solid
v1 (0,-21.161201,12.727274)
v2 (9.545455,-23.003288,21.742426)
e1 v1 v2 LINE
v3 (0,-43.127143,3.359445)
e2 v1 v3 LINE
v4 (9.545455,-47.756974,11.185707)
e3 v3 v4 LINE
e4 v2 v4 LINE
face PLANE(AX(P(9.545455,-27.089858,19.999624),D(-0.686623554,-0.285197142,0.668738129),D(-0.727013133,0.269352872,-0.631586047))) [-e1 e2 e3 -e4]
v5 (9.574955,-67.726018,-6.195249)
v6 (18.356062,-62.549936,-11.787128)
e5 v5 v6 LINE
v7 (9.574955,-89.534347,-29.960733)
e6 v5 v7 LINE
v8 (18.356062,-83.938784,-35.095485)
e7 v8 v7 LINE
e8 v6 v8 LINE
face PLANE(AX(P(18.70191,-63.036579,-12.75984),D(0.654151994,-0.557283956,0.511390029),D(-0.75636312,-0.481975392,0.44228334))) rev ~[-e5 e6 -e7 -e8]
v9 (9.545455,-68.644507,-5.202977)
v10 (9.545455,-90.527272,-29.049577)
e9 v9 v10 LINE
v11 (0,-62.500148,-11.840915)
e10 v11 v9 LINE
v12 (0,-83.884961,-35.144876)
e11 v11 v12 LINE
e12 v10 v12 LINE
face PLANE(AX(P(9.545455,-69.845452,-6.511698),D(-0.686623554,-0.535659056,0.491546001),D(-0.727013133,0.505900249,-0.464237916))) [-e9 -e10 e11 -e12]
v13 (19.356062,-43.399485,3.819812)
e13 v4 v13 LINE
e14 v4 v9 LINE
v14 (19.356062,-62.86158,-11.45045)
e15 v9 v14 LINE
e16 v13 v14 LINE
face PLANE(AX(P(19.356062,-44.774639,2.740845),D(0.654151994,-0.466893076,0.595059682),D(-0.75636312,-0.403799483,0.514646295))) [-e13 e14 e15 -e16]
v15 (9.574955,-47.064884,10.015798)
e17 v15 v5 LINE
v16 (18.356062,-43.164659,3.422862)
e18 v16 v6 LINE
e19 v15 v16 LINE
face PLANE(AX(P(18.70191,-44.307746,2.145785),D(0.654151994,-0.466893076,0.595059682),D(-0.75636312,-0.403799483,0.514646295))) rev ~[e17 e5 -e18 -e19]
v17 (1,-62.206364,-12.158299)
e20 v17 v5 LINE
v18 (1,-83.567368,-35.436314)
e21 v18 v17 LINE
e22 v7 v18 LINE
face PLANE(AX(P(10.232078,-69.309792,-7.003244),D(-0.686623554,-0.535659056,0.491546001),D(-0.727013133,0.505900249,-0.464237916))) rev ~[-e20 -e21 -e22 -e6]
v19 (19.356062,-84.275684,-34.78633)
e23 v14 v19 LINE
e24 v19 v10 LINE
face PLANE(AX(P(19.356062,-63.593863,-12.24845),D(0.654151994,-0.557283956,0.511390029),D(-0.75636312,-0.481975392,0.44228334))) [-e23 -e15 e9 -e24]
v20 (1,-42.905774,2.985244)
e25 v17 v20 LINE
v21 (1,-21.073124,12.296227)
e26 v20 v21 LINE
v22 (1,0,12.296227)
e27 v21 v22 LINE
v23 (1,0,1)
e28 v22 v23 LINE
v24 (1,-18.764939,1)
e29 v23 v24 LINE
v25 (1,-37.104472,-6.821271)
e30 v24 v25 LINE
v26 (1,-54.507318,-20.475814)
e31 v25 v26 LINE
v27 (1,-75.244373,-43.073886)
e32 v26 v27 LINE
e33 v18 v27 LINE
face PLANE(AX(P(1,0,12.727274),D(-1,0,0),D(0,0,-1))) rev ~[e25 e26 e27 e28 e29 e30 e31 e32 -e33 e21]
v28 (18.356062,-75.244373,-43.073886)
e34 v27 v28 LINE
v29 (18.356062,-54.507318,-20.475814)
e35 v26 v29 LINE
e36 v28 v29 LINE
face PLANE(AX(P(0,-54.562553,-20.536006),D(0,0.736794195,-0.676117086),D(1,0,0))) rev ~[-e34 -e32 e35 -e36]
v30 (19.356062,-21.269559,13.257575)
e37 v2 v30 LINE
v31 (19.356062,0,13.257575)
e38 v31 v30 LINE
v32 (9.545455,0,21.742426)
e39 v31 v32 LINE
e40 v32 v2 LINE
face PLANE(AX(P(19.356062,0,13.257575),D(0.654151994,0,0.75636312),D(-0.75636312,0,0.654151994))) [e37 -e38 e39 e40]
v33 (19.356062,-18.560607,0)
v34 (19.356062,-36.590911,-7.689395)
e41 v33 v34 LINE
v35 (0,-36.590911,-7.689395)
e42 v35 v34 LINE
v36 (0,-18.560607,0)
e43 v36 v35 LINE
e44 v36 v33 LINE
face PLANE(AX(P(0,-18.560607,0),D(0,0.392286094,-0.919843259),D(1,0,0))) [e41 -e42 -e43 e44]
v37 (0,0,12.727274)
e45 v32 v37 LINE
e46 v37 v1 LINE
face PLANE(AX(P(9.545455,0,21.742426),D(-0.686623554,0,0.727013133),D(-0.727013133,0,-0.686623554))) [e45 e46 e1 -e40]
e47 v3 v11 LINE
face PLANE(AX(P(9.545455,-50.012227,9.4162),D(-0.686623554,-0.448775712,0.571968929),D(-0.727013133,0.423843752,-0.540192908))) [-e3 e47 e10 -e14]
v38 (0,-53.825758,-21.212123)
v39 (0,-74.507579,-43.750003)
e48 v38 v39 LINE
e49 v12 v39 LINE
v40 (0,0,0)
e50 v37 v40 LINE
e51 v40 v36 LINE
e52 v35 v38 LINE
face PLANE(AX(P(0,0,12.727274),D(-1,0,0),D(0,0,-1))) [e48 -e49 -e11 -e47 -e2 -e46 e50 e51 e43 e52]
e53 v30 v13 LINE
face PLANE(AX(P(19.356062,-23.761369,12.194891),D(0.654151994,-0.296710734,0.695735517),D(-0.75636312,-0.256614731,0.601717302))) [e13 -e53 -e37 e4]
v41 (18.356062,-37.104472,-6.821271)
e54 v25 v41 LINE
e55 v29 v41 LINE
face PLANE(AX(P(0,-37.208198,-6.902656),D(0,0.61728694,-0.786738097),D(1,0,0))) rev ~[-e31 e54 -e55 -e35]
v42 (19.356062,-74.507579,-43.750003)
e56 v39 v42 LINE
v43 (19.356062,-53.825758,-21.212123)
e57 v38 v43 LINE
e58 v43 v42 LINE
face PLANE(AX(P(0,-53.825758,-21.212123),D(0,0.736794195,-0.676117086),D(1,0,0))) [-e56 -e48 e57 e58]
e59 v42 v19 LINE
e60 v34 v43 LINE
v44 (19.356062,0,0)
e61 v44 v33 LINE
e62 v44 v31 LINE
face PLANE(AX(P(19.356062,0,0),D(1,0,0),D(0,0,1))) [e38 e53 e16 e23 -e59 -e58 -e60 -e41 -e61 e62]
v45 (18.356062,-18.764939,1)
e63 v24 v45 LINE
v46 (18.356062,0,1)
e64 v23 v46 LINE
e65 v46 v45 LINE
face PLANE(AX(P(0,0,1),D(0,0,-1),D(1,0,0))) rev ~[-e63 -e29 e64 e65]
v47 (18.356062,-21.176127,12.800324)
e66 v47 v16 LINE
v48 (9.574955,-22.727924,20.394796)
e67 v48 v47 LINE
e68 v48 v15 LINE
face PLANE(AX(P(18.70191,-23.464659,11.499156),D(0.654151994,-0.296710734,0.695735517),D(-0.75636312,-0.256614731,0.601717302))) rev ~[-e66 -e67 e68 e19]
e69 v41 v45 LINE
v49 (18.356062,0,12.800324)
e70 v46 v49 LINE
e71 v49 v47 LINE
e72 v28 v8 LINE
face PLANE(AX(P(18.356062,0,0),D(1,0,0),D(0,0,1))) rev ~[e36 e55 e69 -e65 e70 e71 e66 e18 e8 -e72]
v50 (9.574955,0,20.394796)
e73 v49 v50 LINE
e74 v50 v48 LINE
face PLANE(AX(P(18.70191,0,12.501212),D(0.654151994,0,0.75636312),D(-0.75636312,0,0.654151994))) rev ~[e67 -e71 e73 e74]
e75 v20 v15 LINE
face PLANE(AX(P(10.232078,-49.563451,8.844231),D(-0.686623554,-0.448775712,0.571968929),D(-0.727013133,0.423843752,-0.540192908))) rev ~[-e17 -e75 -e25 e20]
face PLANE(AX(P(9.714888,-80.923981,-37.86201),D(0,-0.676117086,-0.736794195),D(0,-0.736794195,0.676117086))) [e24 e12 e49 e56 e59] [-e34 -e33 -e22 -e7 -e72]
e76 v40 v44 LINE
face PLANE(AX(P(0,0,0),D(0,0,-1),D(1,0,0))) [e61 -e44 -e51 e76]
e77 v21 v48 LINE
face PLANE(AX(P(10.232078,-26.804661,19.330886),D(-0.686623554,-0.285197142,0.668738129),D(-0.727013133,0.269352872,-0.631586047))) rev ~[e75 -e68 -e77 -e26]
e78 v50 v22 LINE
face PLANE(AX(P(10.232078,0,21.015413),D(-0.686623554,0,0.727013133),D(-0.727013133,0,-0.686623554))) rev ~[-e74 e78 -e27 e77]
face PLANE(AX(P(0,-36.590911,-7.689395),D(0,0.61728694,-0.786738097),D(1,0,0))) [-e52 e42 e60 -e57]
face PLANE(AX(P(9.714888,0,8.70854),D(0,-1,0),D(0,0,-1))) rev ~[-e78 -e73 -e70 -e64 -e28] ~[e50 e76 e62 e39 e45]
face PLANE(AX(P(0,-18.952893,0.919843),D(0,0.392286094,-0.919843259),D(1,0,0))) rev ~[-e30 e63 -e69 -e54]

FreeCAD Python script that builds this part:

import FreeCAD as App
import Part
import Sketcher


def faces_at(feature, points):
    """Names of the faces that lie closest to the given points."""
    faces = feature.Shape.Faces
    near = lambda p: min(range(len(faces)), key=lambda i: faces[i].distToShape(Part.Vertex(*p))[0])
    return sorted({f"Face{near(p) + 1}" for p in points})


def add_polygon(sketch, points):
    """Adds a closed chain of lines whose ends are joined by coincident constraints."""
    first, n = sketch.GeometryCount, len(points)
    for a, b in zip(points, points[1:] + points[:1]):
        sketch.addGeometry(Part.LineSegment(App.Vector(*a, 0), App.Vector(*b, 0)), False)
    for i in range(n):
        sketch.addConstraint(Sketcher.Constraint("Coincident", first + i, 2, first + (i + 1) % n, 1))

doc = App.newDocument("Part")
body = doc.addObject("PartDesign::Body", "Body")

sketch1 = doc.addObject("Sketcher::SketchObject", "Sketch")
body.addObject(sketch1)
sketch1.AttachmentSupport = (doc.XZ_Plane, [""])
sketch1.MapMode = "FlatFace"
add_polygon(sketch1, [(0, 13), (0, 0), (19, 0), (19, 13), (10, 22)])
sketch1.addConstraint(Sketcher.Constraint("Vertical", 0))
sketch1.addConstraint(Sketcher.Constraint("Horizontal", 1))
sketch1.addConstraint(Sketcher.Constraint("Vertical", 2))
sketch1.addConstraint(Sketcher.Constraint("Coincident", 0, 2, -1, 1))
sketch1.addConstraint(Sketcher.Constraint("DistanceX", 1, 1, 1, 2, 19.356062))
sketch1.addConstraint(Sketcher.Constraint("DistanceY", 4, 2, 2, 2, 0.530302))
sketch1.addConstraint(Sketcher.Constraint("DistanceY", 0, 2, 0, 1, 12.727274))
sketch1.addConstraint(Sketcher.Constraint("DistanceY", 2, 2, 3, 2, 8.484851))
sketch1.addConstraint(Sketcher.Constraint("Distance", 3, 12.970763))

sketch2 = doc.addObject("Sketcher::SketchObject", "Sketch001")
body.addObject(sketch2)
sketch2.AttachmentSupport = (doc.YZ_Plane, [""])
sketch2.MapMode = "FlatFace"
sketch2.addGeometry(Part.LineSegment(App.Vector(0, 0, 0), App.Vector(-19, 0, 0)), False)
sketch2.addGeometry(Part.LineSegment(App.Vector(-19, 0, 0), App.Vector(-37, -8, 0)), False)
sketch2.addGeometry(Part.LineSegment(App.Vector(-37, -8, 0), App.Vector(-54, -21, 0)), False)
sketch2.addGeometry(Part.LineSegment(App.Vector(-54, -21, 0), App.Vector(-75, -44, 0)), False)
sketch2.addConstraint(Sketcher.Constraint("Coincident", 0, 2, 1, 1))
sketch2.addConstraint(Sketcher.Constraint("Coincident", 1, 2, 2, 1))
sketch2.addConstraint(Sketcher.Constraint("Coincident", 2, 2, 3, 1))
sketch2.addConstraint(Sketcher.Constraint("Horizontal", 0))
sketch2.addConstraint(Sketcher.Constraint("Coincident", 0, 1, -1, 1))
sketch2.addConstraint(Sketcher.Constraint("Distance", 3, 30.589111))
sketch2.addConstraint(Sketcher.Constraint("DistanceX", 0, 2, 0, 1, 18.560607))
sketch2.addConstraint(Sketcher.Constraint("DistanceX", 1, 2, -1, 1, 36.590911))
sketch2.addConstraint(Sketcher.Constraint("DistanceX", 2, 2, -1, 1, 53.825758))
sketch2.addConstraint(Sketcher.Constraint("DistanceX", 3, 2, -1, 1, 74.507579))
sketch2.addConstraint(Sketcher.Constraint("DistanceY", 2, 2, 1, 2, 13.522729))
sketch2.addConstraint(Sketcher.Constraint("Distance", 1, 19.601497))
doc.recompute()

additivepipe = doc.addObject("PartDesign::AdditivePipe", "AdditivePipe")
body.addObject(additivepipe)
additivepipe.Profile = sketch1
additivepipe.Spine = (sketch2, ["Edge1", "Edge2", "Edge3", "Edge4"])
additivepipe.Transition = "Right corner"
doc.recompute()

thickness = doc.addObject("PartDesign::Thickness", "Thickness")
body.addObject(thickness)
thickness.Base = (additivepipe, faces_at(additivepipe, [(9.678, 0, 10.871), (9.678, -82.517, -36.4)]))
thickness.Value = 1
thickness.Reversed = True
thickness.Join = "Intersection"

doc.recompute()
